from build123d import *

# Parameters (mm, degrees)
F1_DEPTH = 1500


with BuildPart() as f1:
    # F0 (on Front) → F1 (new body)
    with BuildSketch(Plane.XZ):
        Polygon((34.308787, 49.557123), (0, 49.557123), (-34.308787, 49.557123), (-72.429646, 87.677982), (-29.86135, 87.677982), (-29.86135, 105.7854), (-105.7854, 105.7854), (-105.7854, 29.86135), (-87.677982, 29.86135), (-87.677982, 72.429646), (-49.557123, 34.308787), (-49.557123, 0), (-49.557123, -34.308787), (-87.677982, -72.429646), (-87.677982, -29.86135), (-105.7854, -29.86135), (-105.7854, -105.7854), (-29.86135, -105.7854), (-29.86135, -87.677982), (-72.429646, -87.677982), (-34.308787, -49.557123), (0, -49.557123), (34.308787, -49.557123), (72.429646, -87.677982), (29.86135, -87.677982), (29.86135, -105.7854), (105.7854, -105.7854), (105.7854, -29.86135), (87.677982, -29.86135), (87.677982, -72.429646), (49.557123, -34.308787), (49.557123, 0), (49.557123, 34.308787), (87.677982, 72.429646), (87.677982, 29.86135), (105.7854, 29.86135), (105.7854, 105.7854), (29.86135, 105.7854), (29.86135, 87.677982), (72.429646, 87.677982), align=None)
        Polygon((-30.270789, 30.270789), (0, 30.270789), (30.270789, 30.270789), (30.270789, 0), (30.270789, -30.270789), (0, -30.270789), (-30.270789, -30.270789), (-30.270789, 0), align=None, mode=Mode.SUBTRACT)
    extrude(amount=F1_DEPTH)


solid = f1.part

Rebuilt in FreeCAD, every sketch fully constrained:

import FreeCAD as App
import Part
import Sketcher
from FreeCAD import Vector
Q = App.Units.Quantity

doc = App.newDocument("Part")
params = doc.addObject("Spreadsheet::Sheet", "Params")
for row, (alias, value) in enumerate([
    ("pad1_length", "1500 mm"),
], start=1):
    params.set(f"A{row}", alias)
    params.set(f"B{row}", "=" + value)
    params.setAlias(f"B{row}", alias)

body = doc.addObject("PartDesign::Body", "Body")

sketch1 = body.newObject("Sketcher::SketchObject", "Sketch")
sketch1.AttachmentSupport = (doc.getObject("XZ_Plane"), [""])
sketch1.MapMode = "FlatFace"
sketch1.addGeometry(Part.LineSegment(Vector(34, 50, 0), Vector(-34, 50, 0)), False)
sketch1.addGeometry(Part.LineSegment(Vector(-34, 50, 0), Vector(-72, 88, 0)), False)
sketch1.addGeometry(Part.LineSegment(Vector(-72, 88, 0), Vector(-30, 88, 0)), False)
sketch1.addGeometry(Part.LineSegment(Vector(-30, 88, 0), Vector(-30, 106, 0)), False)
sketch1.addGeometry(Part.LineSegment(Vector(-30, 106, 0), Vector(-106, 106, 0)), False)
sketch1.addGeometry(Part.LineSegment(Vector(-106, 106, 0), Vector(-106, 30, 0)), False)
sketch1.addGeometry(Part.LineSegment(Vector(-106, 30, 0), Vector(-88, 30, 0)), False)
sketch1.addGeometry(Part.LineSegment(Vector(-88, 30, 0), Vector(-88, 72, 0)), False)
sketch1.addGeometry(Part.LineSegment(Vector(-88, 72, 0), Vector(-50, 34, 0)), False)
sketch1.addGeometry(Part.LineSegment(Vector(-50, 34, 0), Vector(-50, -34, 0)), False)
sketch1.addGeometry(Part.LineSegment(Vector(-50, -34, 0), Vector(-88, -72, 0)), False)
sketch1.addGeometry(Part.LineSegment(Vector(-88, -72, 0), Vector(-88, -30, 0)), False)
sketch1.addGeometry(Part.LineSegment(Vector(-88, -30, 0), Vector(-106, -30, 0)), False)
sketch1.addGeometry(Part.LineSegment(Vector(-106, -30, 0), Vector(-106, -106, 0)), False)
sketch1.addGeometry(Part.LineSegment(Vector(-106, -106, 0), Vector(-30, -106, 0)), False)
sketch1.addGeometry(Part.LineSegment(Vector(-30, -106, 0), Vector(-30, -88, 0)), False)
sketch1.addGeometry(Part.LineSegment(Vector(-30, -88, 0), Vector(-72, -88, 0)), False)
sketch1.addGeometry(Part.LineSegment(Vector(-72, -88, 0), Vector(-34, -50, 0)), False)
sketch1.addGeometry(Part.LineSegment(Vector(-34, -50, 0), Vector(34, -50, 0)), False)
sketch1.addGeometry(Part.LineSegment(Vector(34, -50, 0), Vector(72, -88, 0)), False)
sketch1.addGeometry(Part.LineSegment(Vector(72, -88, 0), Vector(30, -88, 0)), False)
sketch1.addGeometry(Part.LineSegment(Vector(30, -88, 0), Vector(30, -106, 0)), False)
sketch1.addGeometry(Part.LineSegment(Vector(30, -106, 0), Vector(106, -106, 0)), False)
sketch1.addGeometry(Part.LineSegment(Vector(106, -106, 0), Vector(106, -30, 0)), False)
sketch1.addGeometry(Part.LineSegment(Vector(106, -30, 0), Vector(88, -30, 0)), False)
sketch1.addGeometry(Part.LineSegment(Vector(88, -30, 0), Vector(88, -72, 0)), False)
sketch1.addGeometry(Part.LineSegment(Vector(88, -72, 0), Vector(50, -34, 0)), False)
sketch1.addGeometry(Part.LineSegment(Vector(50, -34, 0), Vector(50, 34, 0)), False)
sketch1.addGeometry(Part.LineSegment(Vector(50, 34, 0), Vector(88, 72, 0)), False)
sketch1.addGeometry(Part.LineSegment(Vector(88, 72, 0), Vector(88, 30, 0)), False)
sketch1.addGeometry(Part.LineSegment(Vector(88, 30, 0), Vector(106, 30, 0)), False)
sketch1.addGeometry(Part.LineSegment(Vector(106, 30, 0), Vector(106, 106, 0)), False)
sketch1.addGeometry(Part.LineSegment(Vector(106, 106, 0), Vector(30, 106, 0)), False)
sketch1.addGeometry(Part.LineSegment(Vector(30, 106, 0), Vector(30, 88, 0)), False)
sketch1.addGeometry(Part.LineSegment(Vector(30, 88, 0), Vector(72, 88, 0)), False)
sketch1.addGeometry(Part.LineSegment(Vector(72, 88, 0), Vector(34, 50, 0)), False)
sketch1.addGeometry(Part.LineSegment(Vector(-30, -30, 0), Vector(-30, 30, 0)), False)
sketch1.addGeometry(Part.LineSegment(Vector(-30, 30, 0), Vector(30, 30, 0)), False)
sketch1.addGeometry(Part.LineSegment(Vector(30, 30, 0), Vector(30, -30, 0)), False)
sketch1.addGeometry(Part.LineSegment(Vector(30, -30, 0), Vector(-30, -30, 0)), False)
sketch1.addConstraint(Sketcher.Constraint("Coincident", 0, 2, 1, 1))
sketch1.addConstraint(Sketcher.Constraint("Coincident", 1, 2, 2, 1))
sketch1.addConstraint(Sketcher.Constraint("Coincident", 2, 2, 3, 1))
sketch1.addConstraint(Sketcher.Constraint("Coincident", 3, 2, 4, 1))
sketch1.addConstraint(Sketcher.Constraint("Coincident", 4, 2, 5, 1))
sketch1.addConstraint(Sketcher.Constraint("Coincident", 5, 2, 6, 1))
sketch1.addConstraint(Sketcher.Constraint("Coincident", 6, 2, 7, 1))
sketch1.addConstraint(Sketcher.Constraint("Coincident", 7, 2, 8, 1))
sketch1.addConstraint(Sketcher.Constraint("Coincident", 8, 2, 9, 1))
sketch1.addConstraint(Sketcher.Constraint("Coincident", 9, 2, 10, 1))
sketch1.addConstraint(Sketcher.Constraint("Coincident", 10, 2, 11, 1))
sketch1.addConstraint(Sketcher.Constraint("Coincident", 11, 2, 12, 1))
sketch1.addConstraint(Sketcher.Constraint("Coincident", 12, 2, 13, 1))
sketch1.addConstraint(Sketcher.Constraint("Coincident", 13, 2, 14, 1))
sketch1.addConstraint(Sketcher.Constraint("Coincident", 14, 2, 15, 1))
sketch1.addConstraint(Sketcher.Constraint("Coincident", 15, 2, 16, 1))
sketch1.addConstraint(Sketcher.Constraint("Coincident", 16, 2, 17, 1))
sketch1.addConstraint(Sketcher.Constraint("Coincident", 17, 2, 18, 1))
sketch1.addConstraint(Sketcher.Constraint("Coincident", 18, 2, 19, 1))
sketch1.addConstraint(Sketcher.Constraint("Coincident", 19, 2, 20, 1))
sketch1.addConstraint(Sketcher.Constraint("Coincident", 20, 2, 21, 1))
sketch1.addConstraint(Sketcher.Constraint("Coincident", 21, 2, 22, 1))
sketch1.addConstraint(Sketcher.Constraint("Coincident", 22, 2, 23, 1))
sketch1.addConstraint(Sketcher.Constraint("Coincident", 23, 2, 24, 1))
sketch1.addConstraint(Sketcher.Constraint("Coincident", 24, 2, 25, 1))
sketch1.addConstraint(Sketcher.Constraint("Coincident", 25, 2, 26, 1))
sketch1.addConstraint(Sketcher.Constraint("Coincident", 26, 2, 27, 1))
sketch1.addConstraint(Sketcher.Constraint("Coincident", 27, 2, 28, 1))
sketch1.addConstraint(Sketcher.Constraint("Coincident", 28, 2, 29, 1))
sketch1.addConstraint(Sketcher.Constraint("Coincident", 29, 2, 30, 1))
sketch1.addConstraint(Sketcher.Constraint("Coincident", 30, 2, 31, 1))
sketch1.addConstraint(Sketcher.Constraint("Coincident", 31, 2, 32, 1))
sketch1.addConstraint(Sketcher.Constraint("Coincident", 32, 2, 33, 1))
sketch1.addConstraint(Sketcher.Constraint("Coincident", 33, 2, 34, 1))
sketch1.addConstraint(Sketcher.Constraint("Coincident", 34, 2, 35, 1))
sketch1.addConstraint(Sketcher.Constraint("Coincident", 35, 2, 0, 1))
sketch1.addConstraint(Sketcher.Constraint("Coincident", 36, 2, 37, 1))
sketch1.addConstraint(Sketcher.Constraint("Coincident", 37, 2, 38, 1))
sketch1.addConstraint(Sketcher.Constraint("Coincident", 38, 2, 39, 1))
sketch1.addConstraint(Sketcher.Constraint("Coincident", 39, 2, 36, 1))
sketch1.addConstraint(Sketcher.Constraint("Horizontal", 0))
sketch1.addConstraint(Sketcher.Constraint("Horizontal", 2))
sketch1.addConstraint(Sketcher.Constraint("Vertical", 3))
sketch1.addConstraint(Sketcher.Constraint("Horizontal", 4))
sketch1.addConstraint(Sketcher.Constraint("Vertical", 5))
sketch1.addConstraint(Sketcher.Constraint("Horizontal", 6))
sketch1.addConstraint(Sketcher.Constraint("Vertical", 7))
sketch1.addConstraint(Sketcher.Constraint("Vertical", 9))
sketch1.addConstraint(Sketcher.Constraint("Vertical", 11))
sketch1.addConstraint(Sketcher.Constraint("Horizontal", 12))
sketch1.addConstraint(Sketcher.Constraint("Vertical", 13))
sketch1.addConstraint(Sketcher.Constraint("Horizontal", 14))
sketch1.addConstraint(Sketcher.Constraint("Vertical", 15))
sketch1.addConstraint(Sketcher.Constraint("Horizontal", 16))
sketch1.addConstraint(Sketcher.Constraint("Horizontal", 18))
sketch1.addConstraint(Sketcher.Constraint("Horizontal", 20))
sketch1.addConstraint(Sketcher.Constraint("Vertical", 21))
sketch1.addConstraint(Sketcher.Constraint("Horizontal", 22))
sketch1.addConstraint(Sketcher.Constraint("Vertical", 23))
sketch1.addConstraint(Sketcher.Constraint("Horizontal", 24))
sketch1.addConstraint(Sketcher.Constraint("Vertical", 25))
sketch1.addConstraint(Sketcher.Constraint("Vertical", 27))
sketch1.addConstraint(Sketcher.Constraint("Vertical", 29))
sketch1.addConstraint(Sketcher.Constraint("Horizontal", 30))
sketch1.addConstraint(Sketcher.Constraint("Vertical", 31))
sketch1.addConstraint(Sketcher.Constraint("Horizontal", 32))
sketch1.addConstraint(Sketcher.Constraint("Vertical", 33))
sketch1.addConstraint(Sketcher.Constraint("Horizontal", 34))
sketch1.addConstraint(Sketcher.Constraint("Vertical", 36))
sketch1.addConstraint(Sketcher.Constraint("Horizontal", 37))
sketch1.addConstraint(Sketcher.Constraint("Vertical", 38))
sketch1.addConstraint(Sketcher.Constraint("Horizontal", 39))
sketch1.addConstraint(Sketcher.Constraint("Symmetric", 0, 2, 18, 2, -1, 1))
sketch1.addConstraint(Sketcher.Constraint("Symmetric", 1, 2, 19, 2, -1, 1))
sketch1.addConstraint(Sketcher.Constraint("Symmetric", 3, 2, 21, 2, -1, 1))
sketch1.addConstraint(Sketcher.Constraint("Symmetric", 5, 2, 23, 2, -1, 1))
sketch1.addConstraint(Sketcher.Constraint("Symmetric", 7, 2, 25, 2, -1, 1))
sketch1.addConstraint(Sketcher.Constraint("Symmetric", 8, 2, 26, 2, -1, 1))
sketch1.addConstraint(Sketcher.Constraint("Symmetric", 10, 2, 28, 2, -1, 1))
sketch1.addConstraint(Sketcher.Constraint("Symmetric", 12, 2, 30, 2, -1, 1))
sketch1.addConstraint(Sketcher.Constraint("Symmetric", 14, 2, 32, 2, -1, 1))
sketch1.addConstraint(Sketcher.Constraint("Symmetric", 16, 2, 34, 2, -1, 1))
sketch1.addConstraint(Sketcher.Constraint("Symmetric", 36, 2, 38, 2, -1, 1))
sketch1.addConstraint(Sketcher.Constraint("Symmetric", 16, 2, 19, 2, -2))
sketch1.addConstraint(Sketcher.Constraint("Symmetric", 14, 2, 21, 2, -2))
sketch1.addConstraint(Sketcher.Constraint("Symmetric", 12, 2, 23, 2, -2))
sketch1.addConstraint(Sketcher.Constraint("Symmetric", 10, 2, 25, 2, -2))
sketch1.addConstraint(Sketcher.Constraint("Parallel", 1, 8))
sketch1.addConstraint(Sketcher.Constraint("Perpendicular", 8, 10))
sketch1.addConstraint(Sketcher.Constraint("Parallel", 10, 17))
sketch1.addConstraint(Sketcher.Constraint("Perpendicular", 26, 28))
sketch1.addConstraint(Sketcher.Constraint("Parallel", 28, 35))
sketch1.addConstraint(Sketcher.Constraint("Horizontal", 9, 2, 26, 2))
sketch1.addConstraint(Sketcher.Constraint("Equal", 30, 3))
sketch1.addConstraint(Sketcher.Constraint("Equal", 32, 5))
sketch1.addConstraint(Sketcher.Constraint("Equal", 34, 7))
sketch1.addConstraint(Sketcher.Constraint("Equal", 18, 9))
sketch1.addConstraint(Sketcher.Constraint("Equal", 39, 36))
sketch1.addConstraint(Sketcher.Constraint("Equal", 1, 8))
sketch1.addConstraint(Sketcher.Constraint("DistanceX", 0, 2, 36, 2, Q("4.037998 mm")))
sketch1.addConstraint(Sketcher.Constraint("DistanceX", 4, 2, 4, 1, Q("75.92405 mm")))
sketch1.addConstraint(Sketcher.Constraint("DistanceY", -1, 1, 3, 2, Q("105.7854 mm")))
sketch1.addConstraint(Sketcher.Constraint("DistanceX", 0, 2, 0, 1, Q("68.617574 mm")))
sketch1.addConstraint(Sketcher.Constraint("DistanceX", 2, 1, 2, 2, Q("42.568296 mm")))
sketch1.addConstraint(Sketcher.Constraint("DistanceX", 6, 1, 6, 2, Q("18.107418 mm")))
pad1 = body.newObject("PartDesign::Pad", "Pad")
pad1.Profile = sketch1
pad1.setExpression("Length", "Params.pad1_length")

doc.recompute()
